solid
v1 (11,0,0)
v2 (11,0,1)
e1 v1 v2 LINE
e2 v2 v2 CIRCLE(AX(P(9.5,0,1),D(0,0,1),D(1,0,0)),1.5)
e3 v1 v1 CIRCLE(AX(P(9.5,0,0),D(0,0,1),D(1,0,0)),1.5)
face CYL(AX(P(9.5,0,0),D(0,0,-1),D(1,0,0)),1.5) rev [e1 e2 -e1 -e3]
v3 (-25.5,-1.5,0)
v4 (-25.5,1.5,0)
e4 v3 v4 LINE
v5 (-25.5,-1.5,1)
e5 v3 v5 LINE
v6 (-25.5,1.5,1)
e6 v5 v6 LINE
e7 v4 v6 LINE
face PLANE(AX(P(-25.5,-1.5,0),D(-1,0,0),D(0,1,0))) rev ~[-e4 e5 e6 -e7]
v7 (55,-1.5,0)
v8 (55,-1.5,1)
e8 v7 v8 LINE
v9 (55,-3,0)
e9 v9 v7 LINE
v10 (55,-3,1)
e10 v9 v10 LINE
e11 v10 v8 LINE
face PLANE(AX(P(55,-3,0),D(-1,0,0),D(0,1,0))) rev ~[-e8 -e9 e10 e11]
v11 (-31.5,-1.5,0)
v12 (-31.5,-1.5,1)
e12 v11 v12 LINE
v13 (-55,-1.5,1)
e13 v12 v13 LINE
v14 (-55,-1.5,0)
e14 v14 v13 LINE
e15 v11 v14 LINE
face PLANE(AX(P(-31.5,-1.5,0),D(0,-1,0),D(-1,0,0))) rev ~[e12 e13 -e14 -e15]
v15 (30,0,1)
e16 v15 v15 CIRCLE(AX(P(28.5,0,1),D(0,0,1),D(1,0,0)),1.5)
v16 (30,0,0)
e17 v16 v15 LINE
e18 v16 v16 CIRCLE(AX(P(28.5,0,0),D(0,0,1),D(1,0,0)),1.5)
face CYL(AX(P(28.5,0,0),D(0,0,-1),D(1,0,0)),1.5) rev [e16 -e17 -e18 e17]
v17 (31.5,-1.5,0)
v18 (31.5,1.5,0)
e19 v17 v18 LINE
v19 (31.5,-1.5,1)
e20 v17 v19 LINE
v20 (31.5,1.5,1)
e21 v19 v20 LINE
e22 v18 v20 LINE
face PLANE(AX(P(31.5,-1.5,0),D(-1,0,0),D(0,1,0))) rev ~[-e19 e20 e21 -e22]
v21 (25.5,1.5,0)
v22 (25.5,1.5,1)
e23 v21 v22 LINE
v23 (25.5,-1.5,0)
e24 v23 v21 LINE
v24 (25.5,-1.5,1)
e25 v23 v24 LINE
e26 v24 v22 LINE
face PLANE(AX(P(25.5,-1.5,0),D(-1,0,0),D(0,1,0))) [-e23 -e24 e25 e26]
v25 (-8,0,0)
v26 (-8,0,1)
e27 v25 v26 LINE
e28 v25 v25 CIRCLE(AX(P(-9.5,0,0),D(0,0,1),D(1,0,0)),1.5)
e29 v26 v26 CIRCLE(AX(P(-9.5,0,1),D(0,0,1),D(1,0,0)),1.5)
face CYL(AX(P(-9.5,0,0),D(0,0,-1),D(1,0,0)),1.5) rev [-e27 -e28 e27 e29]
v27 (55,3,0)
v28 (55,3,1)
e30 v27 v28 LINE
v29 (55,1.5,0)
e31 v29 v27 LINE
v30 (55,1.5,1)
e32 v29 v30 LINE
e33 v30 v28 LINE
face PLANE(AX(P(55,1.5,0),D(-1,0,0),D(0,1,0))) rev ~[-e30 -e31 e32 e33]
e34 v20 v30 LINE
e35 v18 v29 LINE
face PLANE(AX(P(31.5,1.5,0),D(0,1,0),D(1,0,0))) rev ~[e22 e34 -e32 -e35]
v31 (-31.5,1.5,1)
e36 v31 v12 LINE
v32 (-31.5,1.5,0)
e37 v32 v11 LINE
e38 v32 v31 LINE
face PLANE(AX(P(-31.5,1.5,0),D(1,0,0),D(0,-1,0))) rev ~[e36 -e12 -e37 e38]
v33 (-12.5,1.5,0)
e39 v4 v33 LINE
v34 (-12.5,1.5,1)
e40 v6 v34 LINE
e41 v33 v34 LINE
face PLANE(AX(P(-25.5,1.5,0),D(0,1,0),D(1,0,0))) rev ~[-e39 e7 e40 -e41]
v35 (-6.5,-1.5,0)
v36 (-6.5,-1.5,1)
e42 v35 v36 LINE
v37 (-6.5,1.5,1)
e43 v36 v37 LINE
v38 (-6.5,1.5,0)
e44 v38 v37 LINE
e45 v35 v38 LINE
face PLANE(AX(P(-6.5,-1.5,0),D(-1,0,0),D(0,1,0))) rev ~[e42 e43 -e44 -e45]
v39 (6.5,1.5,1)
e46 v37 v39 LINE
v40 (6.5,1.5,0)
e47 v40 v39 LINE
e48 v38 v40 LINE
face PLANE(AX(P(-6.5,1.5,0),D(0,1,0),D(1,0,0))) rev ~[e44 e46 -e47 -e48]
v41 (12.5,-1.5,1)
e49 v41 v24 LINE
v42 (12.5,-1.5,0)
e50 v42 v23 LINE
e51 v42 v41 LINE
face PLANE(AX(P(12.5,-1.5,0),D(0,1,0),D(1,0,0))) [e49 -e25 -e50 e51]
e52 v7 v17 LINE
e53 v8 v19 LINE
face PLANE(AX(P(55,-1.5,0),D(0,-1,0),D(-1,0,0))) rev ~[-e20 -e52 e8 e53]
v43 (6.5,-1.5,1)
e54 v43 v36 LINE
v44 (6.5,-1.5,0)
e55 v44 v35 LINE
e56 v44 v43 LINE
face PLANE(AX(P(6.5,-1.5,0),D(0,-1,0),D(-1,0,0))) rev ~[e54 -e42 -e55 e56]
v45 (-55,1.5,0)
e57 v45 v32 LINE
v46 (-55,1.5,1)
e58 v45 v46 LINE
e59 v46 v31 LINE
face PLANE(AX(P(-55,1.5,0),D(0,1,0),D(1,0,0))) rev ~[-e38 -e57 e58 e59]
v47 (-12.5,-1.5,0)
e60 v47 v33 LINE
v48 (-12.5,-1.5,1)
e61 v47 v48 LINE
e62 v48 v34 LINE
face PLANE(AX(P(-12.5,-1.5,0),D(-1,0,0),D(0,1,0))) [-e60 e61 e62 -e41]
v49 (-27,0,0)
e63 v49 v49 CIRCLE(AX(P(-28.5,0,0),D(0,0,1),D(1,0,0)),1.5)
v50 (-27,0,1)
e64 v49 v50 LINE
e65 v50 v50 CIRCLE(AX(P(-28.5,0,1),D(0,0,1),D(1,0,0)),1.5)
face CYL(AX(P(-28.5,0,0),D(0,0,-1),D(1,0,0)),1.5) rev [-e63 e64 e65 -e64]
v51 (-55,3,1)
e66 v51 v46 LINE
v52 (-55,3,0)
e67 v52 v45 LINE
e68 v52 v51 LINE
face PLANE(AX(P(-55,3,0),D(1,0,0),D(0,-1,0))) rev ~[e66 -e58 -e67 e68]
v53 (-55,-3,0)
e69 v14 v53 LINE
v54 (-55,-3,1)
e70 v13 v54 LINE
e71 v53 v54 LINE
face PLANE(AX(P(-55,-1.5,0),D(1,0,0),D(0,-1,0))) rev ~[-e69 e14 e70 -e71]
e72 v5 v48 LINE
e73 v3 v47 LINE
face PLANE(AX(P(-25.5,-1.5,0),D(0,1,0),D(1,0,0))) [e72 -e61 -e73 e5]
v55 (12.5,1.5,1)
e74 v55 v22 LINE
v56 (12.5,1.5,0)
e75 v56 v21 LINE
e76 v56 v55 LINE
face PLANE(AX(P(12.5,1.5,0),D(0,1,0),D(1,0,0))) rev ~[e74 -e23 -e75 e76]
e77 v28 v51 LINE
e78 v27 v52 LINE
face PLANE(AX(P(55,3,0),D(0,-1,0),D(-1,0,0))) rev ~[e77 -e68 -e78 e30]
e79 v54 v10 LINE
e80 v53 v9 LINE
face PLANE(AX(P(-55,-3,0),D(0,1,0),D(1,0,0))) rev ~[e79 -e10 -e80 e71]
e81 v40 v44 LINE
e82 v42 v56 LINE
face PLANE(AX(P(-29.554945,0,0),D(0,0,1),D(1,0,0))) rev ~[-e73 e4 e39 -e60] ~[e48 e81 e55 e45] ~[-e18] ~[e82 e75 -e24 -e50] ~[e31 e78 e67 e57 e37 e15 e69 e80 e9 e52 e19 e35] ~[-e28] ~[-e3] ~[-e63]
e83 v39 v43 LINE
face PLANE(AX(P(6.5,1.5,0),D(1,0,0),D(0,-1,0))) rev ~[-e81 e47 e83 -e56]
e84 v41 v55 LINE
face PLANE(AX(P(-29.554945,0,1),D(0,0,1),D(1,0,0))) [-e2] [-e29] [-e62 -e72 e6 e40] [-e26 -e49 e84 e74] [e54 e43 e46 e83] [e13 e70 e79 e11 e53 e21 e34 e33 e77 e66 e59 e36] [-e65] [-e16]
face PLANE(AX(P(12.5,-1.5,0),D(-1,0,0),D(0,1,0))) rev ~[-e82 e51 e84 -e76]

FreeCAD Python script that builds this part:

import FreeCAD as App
import Part
import Sketcher
from FreeCAD import Vector


def add_polygon(sketch, points):
    """Adds a closed chain of lines whose ends are joined by coincident constraints."""
    first, n = sketch.GeometryCount, len(points)
    for a, b in zip(points, points[1:] + points[:1]):
        sketch.addGeometry(Part.LineSegment(App.Vector(*a, 0), App.Vector(*b, 0)), False)
    for i in range(n):
        sketch.addConstraint(Sketcher.Constraint("Coincident", first + i, 2, first + (i + 1) % n, 1))

doc = App.newDocument("Part")
body = doc.addObject("PartDesign::Body", "Body")

sketch1 = doc.addObject("Sketcher::SketchObject", "Sketch")
body.addObject(sketch1)
sketch1.AttachmentSupport = (doc.XY_Plane, [""])
sketch1.MapMode = "FlatFace"
add_polygon(sketch1, [(-55, 3), (-55, 1.5), (-31.5, 1.5), (-31.5, -1.5), (-55, -1.5), (-55, -3), (55, -3), (55, -1.5), (31.5, -1.5), (31.5, 1.5), (55, 1.5), (55, 3)])
sketch1.addGeometry(Part.Circle(Vector(-28.5, 0, 0), Vector(0, 0, 1), 1.5), False)
add_polygon(sketch1, [(-12.5, -1.5), (-25.5, -1.5), (-25.5, 1.5), (-12.5, 1.5)])
sketch1.addGeometry(Part.Circle(Vector(-9.5, 0, 0), Vector(0, 0, 1), 1.5), False)
add_polygon(sketch1, [(-6.5, 1.5), (6.5, 1.5), (6.5, -1.5), (-6.5, -1.5)])
sketch1.addGeometry(Part.Circle(Vector(9.5, 0, 0), Vector(0, 0, 1), 1.5), False)
add_polygon(sketch1, [(25.5, -1.5), (12.5, -1.5), (12.5, 1.5), (25.5, 1.5)])
sketch1.addGeometry(Part.Circle(Vector(28.5, 0, 0), Vector(0, 0, 1), 1.5), False)
sketch1.addConstraint([
    Sketcher.Constraint("Vertical", 0),
    Sketcher.Constraint("Horizontal", 1),
    Sketcher.Constraint("Vertical", 2),
    Sketcher.Constraint("Horizontal", 3),
    Sketcher.Constraint("Vertical", 4),
    Sketcher.Constraint("Horizontal", 5),
    Sketcher.Constraint("Vertical", 6),
    Sketcher.Constraint("Horizontal", 7),
    Sketcher.Constraint("Vertical", 8),
    Sketcher.Constraint("Horizontal", 9),
    Sketcher.Constraint("Vertical", 10),
    Sketcher.Constraint("Horizontal", 11),
    Sketcher.Constraint("Horizontal", 13),
    Sketcher.Constraint("Vertical", 14),
    Sketcher.Constraint("Horizontal", 15),
    Sketcher.Constraint("Vertical", 16),
    Sketcher.Constraint("Horizontal", 18),
    Sketcher.Constraint("Vertical", 19),
    Sketcher.Constraint("Horizontal", 20),
    Sketcher.Constraint("Vertical", 21),
    Sketcher.Constraint("Horizontal", 23),
    Sketcher.Constraint("Vertical", 24),
    Sketcher.Constraint("Horizontal", 25),
    Sketcher.Constraint("Vertical", 26),
    Sketcher.Constraint("Equal", 12, 17),
    Sketcher.Constraint("Equal", 17, 22),
    Sketcher.Constraint("Equal", 22, 27),
    Sketcher.Constraint("Symmetric", 17, 3, 22, 3, -1, 1),
    Sketcher.Constraint("Symmetric", 12, 3, 27, 3, -1, 1),
    Sketcher.Constraint("Symmetric", 0, 2, 6, 2, -1, 1),
    Sketcher.Constraint("Symmetric", 2, 2, 8, 2, -1, 1),
    Sketcher.Constraint("Symmetric", 4, 2, 10, 2, -1, 1),
    Sketcher.Constraint("Symmetric", 18, 2, 20, 2, -1, 1),
    Sketcher.Constraint("Symmetric", 15, 2, 23, 2, -1, 1),
    Sketcher.Constraint("Symmetric", 13, 2, 25, 2, -1, 1),
    Sketcher.Constraint("Symmetric", 3, 2, 6, 2, -2),
    Sketcher.Constraint("PointOnObject", 12, 3, -1),
    Sketcher.Constraint("PointOnObject", 17, 3, -1),
    Sketcher.Constraint("Horizontal", 7, 2, 13, 2),
    Sketcher.Constraint("Horizontal", 9, 2, 14, 2),
    Sketcher.Constraint("Horizontal", 15, 2, 18, 2),
    Sketcher.Constraint("Equal", 15, 18),
    Sketcher.Constraint("Diameter", 12, 3.0),
    Sketcher.Constraint("DistanceX", 5, 1, 5, 2, 110.0),
    Sketcher.Constraint("DistanceX", 13, 2, 13, 1, 13.0),
    Sketcher.Constraint("DistanceY", 2, 2, 2, 1, 3.0),
    Sketcher.Constraint("DistanceX", 1, 1, 1, 2, 23.5),
    Sketcher.Constraint("DistanceY", 0, 2, 0, 1, 1.5),
    Sketcher.Constraint("DistanceX", 12, 3, 17, 3, 19.0),
    Sketcher.Constraint("DistanceX", 17, 3, 22, 3, 19.0),
    Sketcher.Constraint("DistanceX", 12, 3, 13, 2, 3.0),
])
pad1 = doc.addObject("PartDesign::Pad", "Pad")
body.addObject(pad1)
pad1.Profile = sketch1
pad1.Length = 1

doc.recompute()
